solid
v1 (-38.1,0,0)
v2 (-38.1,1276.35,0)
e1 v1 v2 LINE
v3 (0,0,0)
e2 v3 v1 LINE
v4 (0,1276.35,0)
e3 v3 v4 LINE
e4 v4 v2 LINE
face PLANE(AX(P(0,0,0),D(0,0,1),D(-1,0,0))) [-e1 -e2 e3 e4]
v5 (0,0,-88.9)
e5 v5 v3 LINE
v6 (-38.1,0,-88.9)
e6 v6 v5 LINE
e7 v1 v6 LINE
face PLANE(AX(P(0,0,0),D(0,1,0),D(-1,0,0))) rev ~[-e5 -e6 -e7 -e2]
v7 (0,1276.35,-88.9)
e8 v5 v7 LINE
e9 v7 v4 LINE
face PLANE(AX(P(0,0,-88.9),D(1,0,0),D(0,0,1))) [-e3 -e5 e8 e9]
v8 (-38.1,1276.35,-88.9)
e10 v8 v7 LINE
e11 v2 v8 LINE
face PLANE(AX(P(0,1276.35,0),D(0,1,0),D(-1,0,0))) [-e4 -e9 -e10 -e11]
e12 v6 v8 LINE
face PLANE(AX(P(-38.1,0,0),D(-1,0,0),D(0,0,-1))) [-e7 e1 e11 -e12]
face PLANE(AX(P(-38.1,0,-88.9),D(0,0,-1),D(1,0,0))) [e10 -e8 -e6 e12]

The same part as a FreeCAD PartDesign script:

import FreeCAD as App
import Part
import Sketcher

V = App.Vector
Q = App.Units.Quantity

doc = App.newDocument("Part")
body = doc.addObject("PartDesign::Body", "Body")

# Sketch on XZ plane
sketch1 = doc.addObject("Sketcher::SketchObject", "Sketch")
body.addObject(sketch1)
sketch1.AttachmentSupport = (doc.XZ_Plane, [""])
sketch1.MapMode = "FlatFace"
sketch1.addGeometry(Part.LineSegment(V(-38, 0, 0), V(0, 0, 0)), False)
sketch1.addGeometry(Part.LineSegment(V(0, 0, 0), V(0, -89, 0)), False)
sketch1.addGeometry(Part.LineSegment(V(0, -89, 0), V(-38, -89, 0)), False)
sketch1.addGeometry(Part.LineSegment(V(-38, -89, 0), V(-38, 0, 0)), False)
sketch1.addConstraint(Sketcher.Constraint("Coincident", 0, 2, 1, 1))
sketch1.addConstraint(Sketcher.Constraint("Coincident", 1, 2, 2, 1))
sketch1.addConstraint(Sketcher.Constraint("Coincident", 2, 2, 3, 1))
sketch1.addConstraint(Sketcher.Constraint("Coincident", 3, 2, 0, 1))
sketch1.addConstraint(Sketcher.Constraint("Horizontal", 0))
sketch1.addConstraint(Sketcher.Constraint("Vertical", 1))
sketch1.addConstraint(Sketcher.Constraint("Horizontal", 2))
sketch1.addConstraint(Sketcher.Constraint("Vertical", 3))
sketch1.addConstraint(Sketcher.Constraint("Coincident", 0, 2, -1, 1))
sketch1.addConstraint(Sketcher.Constraint("DistanceX", 0, 1, 0, 2, Q("1.5 in")))
sketch1.addConstraint(Sketcher.Constraint("DistanceY", 1, 2, 1, 1, Q("3.5 in")))
pad1 = doc.addObject("PartDesign::Pad", "Pad")
body.addObject(pad1)
pad1.Profile = sketch1
pad1.Length = Q("50.25 in")
pad1.Reversed = True

doc.recompute()
